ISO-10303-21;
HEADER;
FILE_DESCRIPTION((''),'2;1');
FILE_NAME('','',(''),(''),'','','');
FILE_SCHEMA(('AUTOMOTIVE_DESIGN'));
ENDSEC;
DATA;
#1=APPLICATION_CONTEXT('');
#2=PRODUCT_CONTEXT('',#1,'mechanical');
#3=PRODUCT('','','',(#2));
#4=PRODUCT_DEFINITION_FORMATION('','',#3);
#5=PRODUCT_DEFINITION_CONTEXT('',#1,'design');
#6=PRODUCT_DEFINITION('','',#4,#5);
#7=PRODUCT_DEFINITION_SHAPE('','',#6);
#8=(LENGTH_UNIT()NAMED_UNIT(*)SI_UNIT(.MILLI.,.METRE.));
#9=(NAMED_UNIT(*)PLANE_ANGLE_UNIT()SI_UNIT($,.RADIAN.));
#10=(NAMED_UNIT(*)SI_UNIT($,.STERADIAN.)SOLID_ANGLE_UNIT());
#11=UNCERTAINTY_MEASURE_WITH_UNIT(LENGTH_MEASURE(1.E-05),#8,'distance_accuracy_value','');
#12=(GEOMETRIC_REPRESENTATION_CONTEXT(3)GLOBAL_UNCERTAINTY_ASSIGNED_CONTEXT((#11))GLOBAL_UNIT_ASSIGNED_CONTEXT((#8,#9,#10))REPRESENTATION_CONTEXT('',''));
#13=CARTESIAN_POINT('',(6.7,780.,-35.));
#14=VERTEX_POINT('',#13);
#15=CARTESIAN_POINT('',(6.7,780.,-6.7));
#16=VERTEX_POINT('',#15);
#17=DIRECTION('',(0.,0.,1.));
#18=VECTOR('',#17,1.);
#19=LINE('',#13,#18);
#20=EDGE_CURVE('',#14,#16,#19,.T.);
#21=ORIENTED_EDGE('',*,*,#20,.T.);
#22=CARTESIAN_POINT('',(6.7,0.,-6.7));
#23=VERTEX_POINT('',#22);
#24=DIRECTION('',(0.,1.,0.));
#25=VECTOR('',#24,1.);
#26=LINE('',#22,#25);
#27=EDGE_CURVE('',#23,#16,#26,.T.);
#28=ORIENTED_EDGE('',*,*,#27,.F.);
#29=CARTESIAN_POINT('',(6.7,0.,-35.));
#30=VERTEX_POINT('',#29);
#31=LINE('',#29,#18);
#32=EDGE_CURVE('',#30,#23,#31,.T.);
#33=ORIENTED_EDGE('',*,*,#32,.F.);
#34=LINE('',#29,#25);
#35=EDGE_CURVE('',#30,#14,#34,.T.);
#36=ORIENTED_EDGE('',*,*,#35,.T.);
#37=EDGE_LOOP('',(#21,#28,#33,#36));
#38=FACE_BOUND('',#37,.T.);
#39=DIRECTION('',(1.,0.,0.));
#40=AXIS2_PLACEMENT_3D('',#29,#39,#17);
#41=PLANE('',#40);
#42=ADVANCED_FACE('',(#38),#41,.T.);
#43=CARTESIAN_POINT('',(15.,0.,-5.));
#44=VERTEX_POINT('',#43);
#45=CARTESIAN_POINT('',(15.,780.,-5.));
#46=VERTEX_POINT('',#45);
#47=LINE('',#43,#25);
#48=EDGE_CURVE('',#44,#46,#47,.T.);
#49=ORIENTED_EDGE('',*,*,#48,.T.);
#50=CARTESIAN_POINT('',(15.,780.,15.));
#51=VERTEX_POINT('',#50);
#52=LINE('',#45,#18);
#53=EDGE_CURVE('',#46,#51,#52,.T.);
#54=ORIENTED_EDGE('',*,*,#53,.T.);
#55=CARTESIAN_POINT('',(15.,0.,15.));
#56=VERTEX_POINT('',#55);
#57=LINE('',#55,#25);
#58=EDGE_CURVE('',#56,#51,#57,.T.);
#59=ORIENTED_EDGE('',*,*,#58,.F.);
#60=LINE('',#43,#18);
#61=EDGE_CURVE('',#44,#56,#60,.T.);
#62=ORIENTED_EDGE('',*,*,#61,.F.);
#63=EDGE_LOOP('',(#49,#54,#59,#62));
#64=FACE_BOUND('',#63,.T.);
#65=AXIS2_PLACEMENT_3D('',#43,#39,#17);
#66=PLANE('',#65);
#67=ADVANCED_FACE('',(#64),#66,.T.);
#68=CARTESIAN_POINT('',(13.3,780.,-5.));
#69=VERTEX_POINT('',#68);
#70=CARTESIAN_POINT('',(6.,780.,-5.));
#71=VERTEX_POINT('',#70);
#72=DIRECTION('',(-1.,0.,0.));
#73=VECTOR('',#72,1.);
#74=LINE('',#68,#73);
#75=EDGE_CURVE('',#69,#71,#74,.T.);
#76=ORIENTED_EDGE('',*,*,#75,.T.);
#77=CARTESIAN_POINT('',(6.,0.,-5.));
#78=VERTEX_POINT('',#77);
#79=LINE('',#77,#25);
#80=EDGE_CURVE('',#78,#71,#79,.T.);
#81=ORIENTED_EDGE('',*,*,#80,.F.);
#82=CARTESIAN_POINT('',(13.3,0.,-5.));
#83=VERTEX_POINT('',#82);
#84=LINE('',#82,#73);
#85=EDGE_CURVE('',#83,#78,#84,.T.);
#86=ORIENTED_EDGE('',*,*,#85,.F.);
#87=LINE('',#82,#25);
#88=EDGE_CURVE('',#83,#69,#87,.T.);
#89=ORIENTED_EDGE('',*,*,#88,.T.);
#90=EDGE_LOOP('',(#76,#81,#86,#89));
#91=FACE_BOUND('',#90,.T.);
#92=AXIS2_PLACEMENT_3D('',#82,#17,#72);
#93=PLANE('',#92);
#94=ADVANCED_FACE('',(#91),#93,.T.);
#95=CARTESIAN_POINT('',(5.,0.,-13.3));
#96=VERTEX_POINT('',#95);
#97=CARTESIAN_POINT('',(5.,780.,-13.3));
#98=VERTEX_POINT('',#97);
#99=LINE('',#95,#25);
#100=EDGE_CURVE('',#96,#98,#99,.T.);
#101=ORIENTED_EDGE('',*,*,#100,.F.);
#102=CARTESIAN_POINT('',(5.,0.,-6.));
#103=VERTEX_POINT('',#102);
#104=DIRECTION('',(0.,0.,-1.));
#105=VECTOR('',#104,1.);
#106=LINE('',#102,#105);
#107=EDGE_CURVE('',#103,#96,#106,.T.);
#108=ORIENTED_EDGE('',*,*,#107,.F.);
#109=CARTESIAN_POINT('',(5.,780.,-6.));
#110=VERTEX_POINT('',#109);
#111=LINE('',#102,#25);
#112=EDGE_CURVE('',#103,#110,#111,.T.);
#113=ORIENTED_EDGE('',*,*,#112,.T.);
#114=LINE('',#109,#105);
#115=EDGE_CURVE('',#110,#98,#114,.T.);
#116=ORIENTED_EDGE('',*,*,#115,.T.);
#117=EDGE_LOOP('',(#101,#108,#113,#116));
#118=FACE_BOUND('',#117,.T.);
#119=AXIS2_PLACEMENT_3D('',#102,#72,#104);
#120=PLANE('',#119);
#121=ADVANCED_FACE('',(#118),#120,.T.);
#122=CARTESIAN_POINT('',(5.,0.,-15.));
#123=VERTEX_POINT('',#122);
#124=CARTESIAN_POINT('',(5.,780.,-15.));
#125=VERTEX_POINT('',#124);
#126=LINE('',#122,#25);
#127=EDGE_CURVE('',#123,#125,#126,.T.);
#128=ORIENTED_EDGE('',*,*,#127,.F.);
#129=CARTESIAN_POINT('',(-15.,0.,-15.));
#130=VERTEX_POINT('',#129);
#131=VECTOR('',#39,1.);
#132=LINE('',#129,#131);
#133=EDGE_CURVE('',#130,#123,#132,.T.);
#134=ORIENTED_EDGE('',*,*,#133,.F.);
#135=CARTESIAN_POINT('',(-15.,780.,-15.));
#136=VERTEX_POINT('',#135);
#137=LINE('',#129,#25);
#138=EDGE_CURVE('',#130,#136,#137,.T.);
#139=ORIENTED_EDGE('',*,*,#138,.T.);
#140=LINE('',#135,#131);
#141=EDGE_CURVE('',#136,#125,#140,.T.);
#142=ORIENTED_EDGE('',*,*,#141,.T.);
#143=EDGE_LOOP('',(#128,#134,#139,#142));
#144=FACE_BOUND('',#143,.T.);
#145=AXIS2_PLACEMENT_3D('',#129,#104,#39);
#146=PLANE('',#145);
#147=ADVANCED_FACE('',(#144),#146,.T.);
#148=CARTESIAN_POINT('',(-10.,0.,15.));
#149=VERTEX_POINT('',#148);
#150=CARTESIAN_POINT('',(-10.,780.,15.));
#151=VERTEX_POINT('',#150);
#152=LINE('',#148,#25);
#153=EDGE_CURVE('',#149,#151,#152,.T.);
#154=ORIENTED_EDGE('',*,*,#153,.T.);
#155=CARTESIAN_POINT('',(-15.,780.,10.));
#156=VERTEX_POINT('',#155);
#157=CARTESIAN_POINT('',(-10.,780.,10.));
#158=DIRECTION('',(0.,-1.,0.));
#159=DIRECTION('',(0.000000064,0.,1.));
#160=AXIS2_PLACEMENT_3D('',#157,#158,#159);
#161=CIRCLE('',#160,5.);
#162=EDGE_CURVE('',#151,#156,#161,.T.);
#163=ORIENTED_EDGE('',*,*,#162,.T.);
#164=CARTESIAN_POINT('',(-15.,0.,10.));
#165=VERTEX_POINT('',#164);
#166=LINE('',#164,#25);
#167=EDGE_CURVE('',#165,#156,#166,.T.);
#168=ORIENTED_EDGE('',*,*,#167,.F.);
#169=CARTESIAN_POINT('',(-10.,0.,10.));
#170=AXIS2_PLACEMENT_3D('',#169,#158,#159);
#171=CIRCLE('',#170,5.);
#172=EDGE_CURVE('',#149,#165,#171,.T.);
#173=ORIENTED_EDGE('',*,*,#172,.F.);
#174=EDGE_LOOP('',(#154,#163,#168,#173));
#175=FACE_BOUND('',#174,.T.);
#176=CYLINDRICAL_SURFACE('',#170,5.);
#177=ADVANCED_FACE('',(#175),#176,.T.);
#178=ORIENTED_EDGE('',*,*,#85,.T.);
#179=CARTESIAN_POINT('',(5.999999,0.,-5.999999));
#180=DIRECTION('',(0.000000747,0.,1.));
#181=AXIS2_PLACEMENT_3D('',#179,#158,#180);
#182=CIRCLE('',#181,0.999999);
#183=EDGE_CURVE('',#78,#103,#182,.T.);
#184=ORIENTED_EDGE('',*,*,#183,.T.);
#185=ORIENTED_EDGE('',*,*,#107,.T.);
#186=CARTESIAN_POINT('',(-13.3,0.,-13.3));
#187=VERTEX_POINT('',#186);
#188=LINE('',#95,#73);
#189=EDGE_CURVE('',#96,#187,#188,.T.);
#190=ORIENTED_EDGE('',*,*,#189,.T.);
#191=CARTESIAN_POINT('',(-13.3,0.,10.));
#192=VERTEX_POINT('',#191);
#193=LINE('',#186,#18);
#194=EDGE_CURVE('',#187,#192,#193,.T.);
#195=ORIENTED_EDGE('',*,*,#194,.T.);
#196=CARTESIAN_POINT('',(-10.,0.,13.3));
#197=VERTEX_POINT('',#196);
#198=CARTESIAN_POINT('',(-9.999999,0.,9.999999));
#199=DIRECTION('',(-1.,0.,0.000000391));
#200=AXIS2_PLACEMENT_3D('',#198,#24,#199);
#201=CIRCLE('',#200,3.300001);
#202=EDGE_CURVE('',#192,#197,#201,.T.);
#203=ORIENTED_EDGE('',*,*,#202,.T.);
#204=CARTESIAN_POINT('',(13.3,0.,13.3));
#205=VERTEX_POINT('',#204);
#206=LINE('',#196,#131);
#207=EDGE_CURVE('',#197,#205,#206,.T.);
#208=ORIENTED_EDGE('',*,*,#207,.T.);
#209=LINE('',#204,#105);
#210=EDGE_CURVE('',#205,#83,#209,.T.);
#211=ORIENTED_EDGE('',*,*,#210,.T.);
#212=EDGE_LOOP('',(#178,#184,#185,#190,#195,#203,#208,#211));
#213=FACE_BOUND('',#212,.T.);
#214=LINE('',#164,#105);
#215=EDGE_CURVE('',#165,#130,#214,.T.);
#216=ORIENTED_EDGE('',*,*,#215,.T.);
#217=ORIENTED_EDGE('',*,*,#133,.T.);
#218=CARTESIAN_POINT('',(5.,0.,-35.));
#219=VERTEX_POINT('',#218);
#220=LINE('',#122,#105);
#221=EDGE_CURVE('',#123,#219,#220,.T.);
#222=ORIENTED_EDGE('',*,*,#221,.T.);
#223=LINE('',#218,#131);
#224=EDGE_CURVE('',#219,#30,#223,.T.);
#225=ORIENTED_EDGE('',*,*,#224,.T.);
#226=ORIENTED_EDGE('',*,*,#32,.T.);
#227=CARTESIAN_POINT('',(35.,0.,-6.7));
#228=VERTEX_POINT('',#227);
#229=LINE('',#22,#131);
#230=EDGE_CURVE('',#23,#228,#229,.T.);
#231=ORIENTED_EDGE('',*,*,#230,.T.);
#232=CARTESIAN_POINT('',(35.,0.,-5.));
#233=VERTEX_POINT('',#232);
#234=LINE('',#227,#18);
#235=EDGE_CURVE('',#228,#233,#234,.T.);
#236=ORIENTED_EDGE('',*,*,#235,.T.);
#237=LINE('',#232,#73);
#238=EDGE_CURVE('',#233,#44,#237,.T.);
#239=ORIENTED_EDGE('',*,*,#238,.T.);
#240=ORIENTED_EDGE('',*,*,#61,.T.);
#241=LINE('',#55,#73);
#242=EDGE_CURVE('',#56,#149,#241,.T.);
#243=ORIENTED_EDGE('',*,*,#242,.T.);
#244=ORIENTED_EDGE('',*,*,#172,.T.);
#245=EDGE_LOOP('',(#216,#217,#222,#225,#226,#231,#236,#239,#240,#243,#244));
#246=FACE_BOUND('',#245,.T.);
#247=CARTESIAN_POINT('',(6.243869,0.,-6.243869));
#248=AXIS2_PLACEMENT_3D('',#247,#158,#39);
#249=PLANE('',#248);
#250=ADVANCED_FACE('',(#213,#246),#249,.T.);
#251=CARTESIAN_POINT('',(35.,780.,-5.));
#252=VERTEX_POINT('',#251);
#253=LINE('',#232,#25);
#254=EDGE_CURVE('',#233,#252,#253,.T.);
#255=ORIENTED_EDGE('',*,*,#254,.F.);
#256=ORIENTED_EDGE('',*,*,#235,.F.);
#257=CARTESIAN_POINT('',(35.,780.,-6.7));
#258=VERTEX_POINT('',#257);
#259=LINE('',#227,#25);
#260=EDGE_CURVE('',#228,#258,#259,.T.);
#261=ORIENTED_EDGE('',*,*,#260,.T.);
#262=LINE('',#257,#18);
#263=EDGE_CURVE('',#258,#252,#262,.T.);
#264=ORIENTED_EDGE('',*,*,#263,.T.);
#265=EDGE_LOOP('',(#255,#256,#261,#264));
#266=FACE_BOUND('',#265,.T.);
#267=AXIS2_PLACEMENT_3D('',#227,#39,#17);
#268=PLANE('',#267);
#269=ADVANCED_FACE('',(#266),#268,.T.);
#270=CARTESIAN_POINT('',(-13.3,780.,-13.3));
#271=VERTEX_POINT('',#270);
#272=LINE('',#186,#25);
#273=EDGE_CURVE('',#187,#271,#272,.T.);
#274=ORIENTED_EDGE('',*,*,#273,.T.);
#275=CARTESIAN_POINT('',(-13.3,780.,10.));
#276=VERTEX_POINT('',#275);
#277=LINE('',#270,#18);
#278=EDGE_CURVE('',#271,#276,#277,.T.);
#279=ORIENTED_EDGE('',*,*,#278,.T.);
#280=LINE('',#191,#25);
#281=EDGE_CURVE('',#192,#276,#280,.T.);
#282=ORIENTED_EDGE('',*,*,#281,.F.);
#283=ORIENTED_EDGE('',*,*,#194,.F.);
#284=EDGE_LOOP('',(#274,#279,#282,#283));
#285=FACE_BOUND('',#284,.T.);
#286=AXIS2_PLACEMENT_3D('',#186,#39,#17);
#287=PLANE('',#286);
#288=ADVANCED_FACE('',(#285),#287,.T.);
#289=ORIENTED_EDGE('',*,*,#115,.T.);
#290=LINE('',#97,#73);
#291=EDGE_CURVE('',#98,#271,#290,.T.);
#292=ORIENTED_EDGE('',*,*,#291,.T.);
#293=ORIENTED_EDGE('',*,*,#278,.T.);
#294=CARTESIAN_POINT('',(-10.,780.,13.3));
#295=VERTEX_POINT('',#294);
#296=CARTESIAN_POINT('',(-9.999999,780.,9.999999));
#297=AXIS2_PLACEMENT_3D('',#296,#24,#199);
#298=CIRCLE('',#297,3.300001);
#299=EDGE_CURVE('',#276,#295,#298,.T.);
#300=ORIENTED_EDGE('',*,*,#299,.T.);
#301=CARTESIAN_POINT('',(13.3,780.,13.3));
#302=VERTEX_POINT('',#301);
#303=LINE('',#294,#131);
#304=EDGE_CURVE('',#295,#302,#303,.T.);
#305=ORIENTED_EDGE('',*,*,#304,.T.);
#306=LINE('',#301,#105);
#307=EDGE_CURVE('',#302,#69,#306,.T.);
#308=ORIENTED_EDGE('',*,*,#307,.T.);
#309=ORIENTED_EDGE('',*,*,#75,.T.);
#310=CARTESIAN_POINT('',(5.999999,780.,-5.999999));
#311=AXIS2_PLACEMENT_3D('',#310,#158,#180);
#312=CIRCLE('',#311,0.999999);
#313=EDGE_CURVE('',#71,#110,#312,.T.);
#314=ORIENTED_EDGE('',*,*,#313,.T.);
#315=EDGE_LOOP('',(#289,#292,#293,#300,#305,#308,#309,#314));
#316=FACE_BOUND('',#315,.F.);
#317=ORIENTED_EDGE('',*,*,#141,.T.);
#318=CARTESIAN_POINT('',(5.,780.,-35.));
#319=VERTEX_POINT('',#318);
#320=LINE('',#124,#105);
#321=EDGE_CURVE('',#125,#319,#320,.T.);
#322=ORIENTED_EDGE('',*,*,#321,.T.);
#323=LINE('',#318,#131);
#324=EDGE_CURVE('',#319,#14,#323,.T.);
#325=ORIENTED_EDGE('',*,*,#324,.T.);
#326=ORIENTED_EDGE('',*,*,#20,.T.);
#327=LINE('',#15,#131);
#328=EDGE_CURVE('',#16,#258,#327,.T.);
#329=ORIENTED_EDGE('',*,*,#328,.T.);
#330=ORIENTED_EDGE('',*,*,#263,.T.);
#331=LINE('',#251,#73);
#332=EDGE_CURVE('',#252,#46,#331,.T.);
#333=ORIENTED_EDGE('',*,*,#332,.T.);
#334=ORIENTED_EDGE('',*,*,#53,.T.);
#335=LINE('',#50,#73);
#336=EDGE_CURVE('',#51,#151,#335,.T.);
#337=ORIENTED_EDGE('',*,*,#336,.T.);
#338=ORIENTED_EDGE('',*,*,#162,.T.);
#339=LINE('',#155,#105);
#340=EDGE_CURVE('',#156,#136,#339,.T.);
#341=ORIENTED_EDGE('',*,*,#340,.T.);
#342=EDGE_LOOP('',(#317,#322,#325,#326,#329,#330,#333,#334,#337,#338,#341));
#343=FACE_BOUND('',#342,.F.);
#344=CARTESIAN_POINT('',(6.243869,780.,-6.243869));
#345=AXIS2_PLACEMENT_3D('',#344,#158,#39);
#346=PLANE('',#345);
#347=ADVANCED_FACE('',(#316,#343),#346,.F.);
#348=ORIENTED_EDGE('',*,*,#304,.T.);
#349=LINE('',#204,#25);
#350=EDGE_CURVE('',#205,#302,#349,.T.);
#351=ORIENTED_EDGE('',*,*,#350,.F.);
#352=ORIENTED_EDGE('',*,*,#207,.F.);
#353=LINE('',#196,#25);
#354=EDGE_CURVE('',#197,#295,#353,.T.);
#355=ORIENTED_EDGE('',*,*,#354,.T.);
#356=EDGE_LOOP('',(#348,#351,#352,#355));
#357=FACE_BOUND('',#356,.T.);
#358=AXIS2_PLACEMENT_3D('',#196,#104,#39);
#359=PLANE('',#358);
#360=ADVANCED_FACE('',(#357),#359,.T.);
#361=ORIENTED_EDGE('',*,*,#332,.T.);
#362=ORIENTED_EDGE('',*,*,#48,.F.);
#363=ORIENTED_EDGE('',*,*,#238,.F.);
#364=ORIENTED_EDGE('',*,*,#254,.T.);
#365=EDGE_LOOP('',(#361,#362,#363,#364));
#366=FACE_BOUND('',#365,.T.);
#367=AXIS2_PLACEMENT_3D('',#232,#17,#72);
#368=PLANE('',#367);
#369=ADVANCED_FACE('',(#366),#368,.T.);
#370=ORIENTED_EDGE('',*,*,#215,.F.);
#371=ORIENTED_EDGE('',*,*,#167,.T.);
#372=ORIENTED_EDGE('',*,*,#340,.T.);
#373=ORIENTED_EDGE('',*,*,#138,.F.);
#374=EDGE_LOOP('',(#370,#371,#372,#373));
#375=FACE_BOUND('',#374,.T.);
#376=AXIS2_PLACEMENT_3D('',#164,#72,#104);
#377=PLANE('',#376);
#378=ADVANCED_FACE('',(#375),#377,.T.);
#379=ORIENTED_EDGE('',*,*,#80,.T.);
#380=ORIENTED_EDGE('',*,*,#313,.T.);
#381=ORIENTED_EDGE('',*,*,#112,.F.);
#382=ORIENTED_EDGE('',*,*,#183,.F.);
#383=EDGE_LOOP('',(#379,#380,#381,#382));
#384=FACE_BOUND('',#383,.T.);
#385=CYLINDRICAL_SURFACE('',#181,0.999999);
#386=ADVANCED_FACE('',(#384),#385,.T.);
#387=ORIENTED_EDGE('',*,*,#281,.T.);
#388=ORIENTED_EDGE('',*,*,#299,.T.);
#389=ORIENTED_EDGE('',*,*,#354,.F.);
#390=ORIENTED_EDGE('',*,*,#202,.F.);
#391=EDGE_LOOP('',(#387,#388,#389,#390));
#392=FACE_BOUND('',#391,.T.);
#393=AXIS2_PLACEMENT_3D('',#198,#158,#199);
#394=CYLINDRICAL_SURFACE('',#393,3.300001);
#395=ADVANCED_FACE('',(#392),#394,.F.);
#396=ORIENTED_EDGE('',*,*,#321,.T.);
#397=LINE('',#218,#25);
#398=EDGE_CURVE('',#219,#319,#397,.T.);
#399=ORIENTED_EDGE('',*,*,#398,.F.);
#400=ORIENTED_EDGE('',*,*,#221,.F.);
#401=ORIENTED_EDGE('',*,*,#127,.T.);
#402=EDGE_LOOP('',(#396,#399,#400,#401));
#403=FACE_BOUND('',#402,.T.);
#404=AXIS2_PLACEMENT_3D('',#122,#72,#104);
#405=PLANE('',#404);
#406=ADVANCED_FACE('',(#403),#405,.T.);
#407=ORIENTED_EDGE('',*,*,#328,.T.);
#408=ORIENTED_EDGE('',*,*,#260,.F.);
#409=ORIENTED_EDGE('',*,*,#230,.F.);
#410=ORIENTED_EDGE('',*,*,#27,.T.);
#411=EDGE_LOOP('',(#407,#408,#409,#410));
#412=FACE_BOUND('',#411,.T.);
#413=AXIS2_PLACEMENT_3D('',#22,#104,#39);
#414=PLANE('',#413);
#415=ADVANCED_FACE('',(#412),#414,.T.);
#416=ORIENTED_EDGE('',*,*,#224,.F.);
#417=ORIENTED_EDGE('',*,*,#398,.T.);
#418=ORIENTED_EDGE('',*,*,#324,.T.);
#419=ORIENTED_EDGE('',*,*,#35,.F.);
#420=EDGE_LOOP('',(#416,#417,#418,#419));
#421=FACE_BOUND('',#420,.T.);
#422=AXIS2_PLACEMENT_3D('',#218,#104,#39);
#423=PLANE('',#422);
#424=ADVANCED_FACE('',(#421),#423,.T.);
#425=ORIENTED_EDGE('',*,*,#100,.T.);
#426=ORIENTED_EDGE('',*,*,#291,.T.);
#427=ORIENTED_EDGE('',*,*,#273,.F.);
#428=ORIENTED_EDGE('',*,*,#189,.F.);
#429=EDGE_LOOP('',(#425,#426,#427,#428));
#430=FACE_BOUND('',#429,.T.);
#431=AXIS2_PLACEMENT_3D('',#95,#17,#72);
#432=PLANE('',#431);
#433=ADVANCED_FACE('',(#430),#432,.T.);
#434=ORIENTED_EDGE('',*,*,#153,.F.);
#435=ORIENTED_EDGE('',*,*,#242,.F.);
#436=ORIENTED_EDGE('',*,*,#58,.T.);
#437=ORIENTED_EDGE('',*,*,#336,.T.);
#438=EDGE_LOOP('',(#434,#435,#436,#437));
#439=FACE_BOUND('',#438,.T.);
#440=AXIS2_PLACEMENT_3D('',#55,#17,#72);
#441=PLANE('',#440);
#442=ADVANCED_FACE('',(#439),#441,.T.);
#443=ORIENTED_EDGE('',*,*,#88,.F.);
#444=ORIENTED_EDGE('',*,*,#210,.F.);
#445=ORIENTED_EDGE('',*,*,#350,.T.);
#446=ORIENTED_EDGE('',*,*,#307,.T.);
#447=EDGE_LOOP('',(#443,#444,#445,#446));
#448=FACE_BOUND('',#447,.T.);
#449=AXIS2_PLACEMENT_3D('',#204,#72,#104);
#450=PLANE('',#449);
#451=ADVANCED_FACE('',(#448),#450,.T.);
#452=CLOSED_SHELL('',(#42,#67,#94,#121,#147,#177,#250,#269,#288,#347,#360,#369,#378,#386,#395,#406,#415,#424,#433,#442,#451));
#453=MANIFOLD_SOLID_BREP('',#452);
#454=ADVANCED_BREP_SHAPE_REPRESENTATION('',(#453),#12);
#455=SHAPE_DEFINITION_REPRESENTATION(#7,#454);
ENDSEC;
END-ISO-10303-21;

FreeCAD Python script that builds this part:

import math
import FreeCAD as App
import Part
import Sketcher
from FreeCAD import Vector

doc = App.newDocument("Part")
body = doc.addObject("PartDesign::Body", "Body")

# Sketch on XZ plane
sketch1 = body.newObject("Sketcher::SketchObject", "Sketch")
sketch1.AttachmentSupport = (doc.getObject("XZ_Plane"), [""])
sketch1.MapMode = "FlatFace"
sketch1.addGeometry(Part.LineSegment(Vector(15, 15, 0), Vector(-10, 15, 0)), False)
sketch1.addGeometry(Part.ArcOfCircle(Part.Circle(Vector(-10, 10, 0), Vector(0, 0, 1), 5), math.radians(89.999996), math.radians(180.000004)), False)
sketch1.addGeometry(Part.LineSegment(Vector(-15, 10, 0), Vector(-15, -15, 0)), False)
sketch1.addGeometry(Part.LineSegment(Vector(-15, -15, 0), Vector(5, -15, 0)), False)
sketch1.addGeometry(Part.LineSegment(Vector(5, -15, 0), Vector(5, -35, 0)), False)
sketch1.addGeometry(Part.LineSegment(Vector(5, -35, 0), Vector(6.7, -35, 0)), False)
sketch1.addGeometry(Part.LineSegment(Vector(6.7, -35, 0), Vector(6.7, -6.7, 0)), False)
sketch1.addGeometry(Part.LineSegment(Vector(6.7, -6.7, 0), Vector(35, -6.7, 0)), False)
sketch1.addGeometry(Part.LineSegment(Vector(35, -6.7, 0), Vector(35, -5, 0)), False)
sketch1.addGeometry(Part.LineSegment(Vector(35, -5, 0), Vector(15, -5, 0)), False)
sketch1.addGeometry(Part.LineSegment(Vector(15, -5, 0), Vector(15, 15, 0)), False)
sketch1.addGeometry(Part.LineSegment(Vector(13.3, -5, 0), Vector(6, -5, 0)), False)
sketch1.addGeometry(Part.ArcOfCircle(Part.Circle(Vector(5.999999, -5.999999, 0), Vector(0, 0, 1), 0.999999), math.radians(89.999957), math.radians(180.000043)), False)
sketch1.addGeometry(Part.LineSegment(Vector(5, -6, 0), Vector(5, -13.3, 0)), False)
sketch1.addGeometry(Part.LineSegment(Vector(5, -13.3, 0), Vector(-13.3, -13.3, 0)), False)
sketch1.addGeometry(Part.LineSegment(Vector(-13.3, -13.3, 0), Vector(-13.3, 10, 0)), False)
sketch1.addGeometry(Part.ArcOfCircle(Part.Circle(Vector(-9.999999, 9.999999, 0), Vector(0, 0, 1), 3.300001), math.radians(90.000022), math.radians(179.999978)), False)
sketch1.addGeometry(Part.LineSegment(Vector(-10, 13.3, 0), Vector(13.3, 13.3, 0)), False)
sketch1.addGeometry(Part.LineSegment(Vector(13.3, 13.3, 0), Vector(13.3, -5, 0)), False)
sketch1.addConstraint(Sketcher.Constraint("Tangent", 0, 2, 1, 1))
sketch1.addConstraint(Sketcher.Constraint("Tangent", 1, 2, 2, 1))
sketch1.addConstraint(Sketcher.Constraint("Coincident", 2, 2, 3, 1))
sketch1.addConstraint(Sketcher.Constraint("Coincident", 3, 2, 4, 1))
sketch1.addConstraint(Sketcher.Constraint("Coincident", 4, 2, 5, 1))
sketch1.addConstraint(Sketcher.Constraint("Coincident", 5, 2, 6, 1))
sketch1.addConstraint(Sketcher.Constraint("Coincident", 6, 2, 7, 1))
sketch1.addConstraint(Sketcher.Constraint("Coincident", 7, 2, 8, 1))
sketch1.addConstraint(Sketcher.Constraint("Coincident", 8, 2, 9, 1))
sketch1.addConstraint(Sketcher.Constraint("Coincident", 9, 2, 10, 1))
sketch1.addConstraint(Sketcher.Constraint("Coincident", 10, 2, 0, 1))
sketch1.addConstraint(Sketcher.Constraint("Tangent", 11, 2, 12, 1))
sketch1.addConstraint(Sketcher.Constraint("Tangent", 12, 2, 13, 1))
sketch1.addConstraint(Sketcher.Constraint("Coincident", 13, 2, 14, 1))
sketch1.addConstraint(Sketcher.Constraint("Coincident", 14, 2, 15, 1))
sketch1.addConstraint(Sketcher.Constraint("Tangent", 15, 2, 16, 2))
sketch1.addConstraint(Sketcher.Constraint("Tangent", 16, 1, 17, 1))
sketch1.addConstraint(Sketcher.Constraint("Coincident", 17, 2, 18, 1))
sketch1.addConstraint(Sketcher.Constraint("Coincident", 18, 2, 11, 1))
sketch1.addConstraint(Sketcher.Constraint("Horizontal", 0))
sketch1.addConstraint(Sketcher.Constraint("Vertical", 2))
sketch1.addConstraint(Sketcher.Constraint("Horizontal", 3))
sketch1.addConstraint(Sketcher.Constraint("Vertical", 4))
sketch1.addConstraint(Sketcher.Constraint("Horizontal", 5))
sketch1.addConstraint(Sketcher.Constraint("Vertical", 6))
sketch1.addConstraint(Sketcher.Constraint("Horizontal", 7))
sketch1.addConstraint(Sketcher.Constraint("Vertical", 8))
sketch1.addConstraint(Sketcher.Constraint("Horizontal", 9))
sketch1.addConstraint(Sketcher.Constraint("Vertical", 10))
sketch1.addConstraint(Sketcher.Constraint("Horizontal", 11))
sketch1.addConstraint(Sketcher.Constraint("Vertical", 13))
sketch1.addConstraint(Sketcher.Constraint("Horizontal", 14))
sketch1.addConstraint(Sketcher.Constraint("Vertical", 15))
sketch1.addConstraint(Sketcher.Constraint("Horizontal", 17))
sketch1.addConstraint(Sketcher.Constraint("Vertical", 18))
sketch1.addConstraint(Sketcher.Constraint("Coincident", 16, 3, 1, 3))
sketch1.addConstraint(Sketcher.Constraint("Symmetric", 2, 2, 10, 2, -1, 1))
sketch1.addConstraint(Sketcher.Constraint("Symmetric", 14, 2, 17, 2, -1, 1))
sketch1.addConstraint(Sketcher.Constraint("Horizontal", 9, 2, 11, 2))
sketch1.addConstraint(Sketcher.Constraint("Vertical", 4, 2, 12, 2))
sketch1.addConstraint(Sketcher.Constraint("Equal", 3, 9))
sketch1.addConstraint(Sketcher.Constraint("Equal", 0, 2))
sketch1.addConstraint(Sketcher.Constraint("Equal", 9, 4))
sketch1.addConstraint(Sketcher.Constraint("Equal", 7, 6))
sketch1.addConstraint(Sketcher.Constraint("Equal", 5, 8))
sketch1.addConstraint(Sketcher.Constraint("Radius", 1, 5.0))
sketch1.addConstraint(Sketcher.Constraint("Radius", 12, 0.999999))
sketch1.addConstraint(Sketcher.Constraint("Radius", 16, 3.300001))
sketch1.addConstraint(Sketcher.Constraint("DistanceX", 0, 2, 0, 1, 25.0))
sketch1.addConstraint(Sketcher.Constraint("DistanceX", 3, 1, 3, 2, 20.0))
sketch1.addConstraint(Sketcher.Constraint("DistanceX", 5, 1, 5, 2, 1.7))
pad1 = body.newObject("PartDesign::Pad", "Pad")
pad1.Profile = sketch1
pad1.Length = 780
pad1.Reversed = True

doc.recompute()
